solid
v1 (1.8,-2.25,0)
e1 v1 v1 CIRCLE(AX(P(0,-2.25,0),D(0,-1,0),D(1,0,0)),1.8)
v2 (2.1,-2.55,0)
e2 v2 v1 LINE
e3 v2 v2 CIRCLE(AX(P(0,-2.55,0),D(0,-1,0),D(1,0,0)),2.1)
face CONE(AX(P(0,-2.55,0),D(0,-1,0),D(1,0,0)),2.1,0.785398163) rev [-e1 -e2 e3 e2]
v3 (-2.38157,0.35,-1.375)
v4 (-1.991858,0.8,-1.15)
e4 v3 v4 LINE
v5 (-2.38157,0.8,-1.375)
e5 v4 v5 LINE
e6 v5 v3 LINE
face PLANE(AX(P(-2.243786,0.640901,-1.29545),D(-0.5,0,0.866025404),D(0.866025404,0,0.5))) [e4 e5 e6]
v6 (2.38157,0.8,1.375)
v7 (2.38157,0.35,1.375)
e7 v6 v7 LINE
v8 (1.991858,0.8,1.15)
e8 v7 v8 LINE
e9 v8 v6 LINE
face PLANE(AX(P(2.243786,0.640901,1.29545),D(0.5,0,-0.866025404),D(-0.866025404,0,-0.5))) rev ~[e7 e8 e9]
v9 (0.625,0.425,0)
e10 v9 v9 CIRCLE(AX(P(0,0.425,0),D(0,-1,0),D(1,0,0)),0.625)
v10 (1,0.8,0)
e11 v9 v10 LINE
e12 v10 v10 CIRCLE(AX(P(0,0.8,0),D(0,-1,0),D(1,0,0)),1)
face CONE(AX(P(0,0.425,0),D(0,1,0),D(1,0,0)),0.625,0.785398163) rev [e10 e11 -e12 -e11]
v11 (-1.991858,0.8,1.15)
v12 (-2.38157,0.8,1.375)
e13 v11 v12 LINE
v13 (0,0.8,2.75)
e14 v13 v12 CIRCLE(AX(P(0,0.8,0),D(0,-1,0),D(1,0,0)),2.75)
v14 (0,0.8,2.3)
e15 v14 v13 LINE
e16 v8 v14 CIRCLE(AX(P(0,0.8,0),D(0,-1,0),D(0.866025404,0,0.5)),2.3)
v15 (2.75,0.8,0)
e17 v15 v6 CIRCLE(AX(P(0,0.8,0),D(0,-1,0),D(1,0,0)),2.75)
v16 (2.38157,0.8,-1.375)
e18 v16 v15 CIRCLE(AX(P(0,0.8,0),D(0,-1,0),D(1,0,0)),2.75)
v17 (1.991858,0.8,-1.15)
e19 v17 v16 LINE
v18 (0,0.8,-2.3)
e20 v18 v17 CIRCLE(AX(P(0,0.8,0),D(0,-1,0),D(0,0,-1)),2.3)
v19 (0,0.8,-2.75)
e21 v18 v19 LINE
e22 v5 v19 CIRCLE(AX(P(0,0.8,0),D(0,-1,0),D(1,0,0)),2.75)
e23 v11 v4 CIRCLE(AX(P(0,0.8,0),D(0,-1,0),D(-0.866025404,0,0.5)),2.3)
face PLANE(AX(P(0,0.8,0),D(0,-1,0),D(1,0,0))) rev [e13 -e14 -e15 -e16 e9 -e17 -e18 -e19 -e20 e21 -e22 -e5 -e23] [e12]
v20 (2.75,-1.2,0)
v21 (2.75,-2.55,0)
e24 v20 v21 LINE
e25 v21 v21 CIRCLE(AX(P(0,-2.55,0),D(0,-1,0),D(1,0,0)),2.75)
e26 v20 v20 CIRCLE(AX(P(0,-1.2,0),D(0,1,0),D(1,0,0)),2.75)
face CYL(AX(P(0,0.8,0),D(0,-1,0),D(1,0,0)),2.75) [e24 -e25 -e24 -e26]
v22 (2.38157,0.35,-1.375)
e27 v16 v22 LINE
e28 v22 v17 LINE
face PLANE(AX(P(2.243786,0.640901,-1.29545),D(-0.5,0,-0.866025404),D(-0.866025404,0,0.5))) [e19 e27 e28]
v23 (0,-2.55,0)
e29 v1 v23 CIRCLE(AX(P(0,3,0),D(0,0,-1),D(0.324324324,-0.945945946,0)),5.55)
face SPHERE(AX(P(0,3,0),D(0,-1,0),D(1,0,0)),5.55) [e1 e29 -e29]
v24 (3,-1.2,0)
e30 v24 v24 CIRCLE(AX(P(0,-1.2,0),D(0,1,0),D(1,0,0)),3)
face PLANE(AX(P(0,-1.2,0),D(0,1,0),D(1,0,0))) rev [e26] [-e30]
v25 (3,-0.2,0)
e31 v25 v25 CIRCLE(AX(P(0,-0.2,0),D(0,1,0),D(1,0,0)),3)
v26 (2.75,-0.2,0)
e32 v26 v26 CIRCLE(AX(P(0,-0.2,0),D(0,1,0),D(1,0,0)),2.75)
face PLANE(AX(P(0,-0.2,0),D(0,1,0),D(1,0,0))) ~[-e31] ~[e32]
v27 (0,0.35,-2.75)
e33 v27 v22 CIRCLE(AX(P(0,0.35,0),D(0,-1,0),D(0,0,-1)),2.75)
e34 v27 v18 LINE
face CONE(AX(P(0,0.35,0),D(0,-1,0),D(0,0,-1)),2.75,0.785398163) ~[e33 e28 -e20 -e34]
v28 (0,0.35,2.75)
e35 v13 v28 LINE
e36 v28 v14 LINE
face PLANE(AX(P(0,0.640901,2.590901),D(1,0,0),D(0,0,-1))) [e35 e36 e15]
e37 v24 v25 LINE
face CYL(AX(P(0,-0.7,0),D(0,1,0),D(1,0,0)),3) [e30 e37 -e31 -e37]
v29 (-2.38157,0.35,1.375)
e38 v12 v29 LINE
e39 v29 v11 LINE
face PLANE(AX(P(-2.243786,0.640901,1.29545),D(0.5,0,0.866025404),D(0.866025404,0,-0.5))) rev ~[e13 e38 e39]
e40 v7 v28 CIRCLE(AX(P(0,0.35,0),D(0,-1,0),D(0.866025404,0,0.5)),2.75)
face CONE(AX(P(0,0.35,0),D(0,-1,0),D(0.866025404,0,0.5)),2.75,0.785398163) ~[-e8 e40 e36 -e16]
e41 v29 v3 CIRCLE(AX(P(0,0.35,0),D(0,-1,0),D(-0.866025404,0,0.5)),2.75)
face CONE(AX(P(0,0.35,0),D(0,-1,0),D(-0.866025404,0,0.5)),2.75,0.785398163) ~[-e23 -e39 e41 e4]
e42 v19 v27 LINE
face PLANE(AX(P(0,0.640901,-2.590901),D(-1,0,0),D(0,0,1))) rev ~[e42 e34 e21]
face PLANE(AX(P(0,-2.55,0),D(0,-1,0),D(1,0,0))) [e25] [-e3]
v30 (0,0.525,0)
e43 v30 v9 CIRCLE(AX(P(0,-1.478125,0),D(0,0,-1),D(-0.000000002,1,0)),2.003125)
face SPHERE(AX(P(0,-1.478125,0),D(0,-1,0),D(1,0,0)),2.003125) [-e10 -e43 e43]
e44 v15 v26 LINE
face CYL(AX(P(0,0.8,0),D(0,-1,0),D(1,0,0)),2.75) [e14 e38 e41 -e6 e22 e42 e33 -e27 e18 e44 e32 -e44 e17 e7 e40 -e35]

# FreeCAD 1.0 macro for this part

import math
import FreeCAD as App
import Part
import Sketcher

V = App.Vector
Q = App.Units.Quantity

doc = App.newDocument("Part")
body = doc.addObject("PartDesign::Body", "Body")

# Sketch on XY plane
sketch1 = body.newObject("Sketcher::SketchObject", "Sketch")
sketch1.AttachmentSupport = (doc.getObject("XY_Plane"), [""])
sketch1.MapMode = "FlatFace"
sketch1.addGeometry([
    Part.LineSegment(V(2.75, 0.8, 0), V(1, 0.8, 0)),  # 0
    Part.LineSegment(V(1, 0.8, 0), V(0.62, 0.42, 0)),  # 1
    Part.ArcOfCircle(Part.Circle(V(0, -1.48, 0), V(0, 0, 1), 2), math.radians(71.82), math.radians(90)),  # 2
    Part.LineSegment(V(0, 0.53, 0), V(0, -2.55, 0)),  # 3
    Part.ArcOfCircle(Part.Circle(V(0, 3, 0), V(0, 0, 1), 5.55), math.radians(-90), math.radians(-71.08)),  # 4
    Part.LineSegment(V(1.8, -2.25, 0), V(2.1, -2.55, 0)),  # 5
    Part.LineSegment(V(2.1, -2.55, 0), V(2.75, -2.55, 0)),  # 6
    Part.LineSegment(V(2.75, -2.55, 0), V(2.75, 0.8, 0)),  # 7
], False)
sketch1.addConstraint([
    Sketcher.Constraint("Coincident", 0, 2, 1, 1),
    Sketcher.Constraint("Coincident", 1, 2, 2, 1),
    Sketcher.Constraint("Coincident", 2, 2, 3, 1),
    Sketcher.Constraint("Coincident", 3, 2, 4, 1),
    Sketcher.Constraint("Coincident", 4, 2, 5, 1),
    Sketcher.Constraint("Coincident", 5, 2, 6, 1),
    Sketcher.Constraint("Coincident", 6, 2, 7, 1),
    Sketcher.Constraint("Coincident", 7, 2, 0, 1),
    Sketcher.Constraint("Horizontal", 0),
    Sketcher.Constraint("Vertical", 3),
    Sketcher.Constraint("Horizontal", 6),
    Sketcher.Constraint("Vertical", 7),
    Sketcher.Constraint("PointOnObject", 2, 3, -2),
    Sketcher.Constraint("PointOnObject", 4, 3, -2),
    Sketcher.Constraint("PointOnObject", 2, 2, -2),
    Sketcher.Constraint("Perpendicular", 1, 5),
    Sketcher.Constraint("Horizontal", 3, 2, 5, 2),
    Sketcher.Constraint("Angle", 1, Q("-135 deg")),
    Sketcher.Constraint("Radius", 4, Q("5.55 mm")),
    Sketcher.Constraint("DistanceY", -1, 1, 4, 3, Q("3 mm")),
    Sketcher.Constraint("DistanceX", -1, 1, 0, 2, Q("1 mm")),
    Sketcher.Constraint("DistanceX", 0, 2, 0, 1, Q("1.75 mm")),
    Sketcher.Constraint("DistanceX", 6, 1, 6, 2, Q("0.65 mm")),
    Sketcher.Constraint("DistanceY", 7, 1, 7, 2, Q("3.35 mm")),
    Sketcher.Constraint("DistanceY", 1, 2, 2, 2, Q("0.1 mm")),
    Sketcher.Constraint("DistanceY", 3, 2, 3, 1, Q("3.075 mm")),
])
revolution = body.newObject("PartDesign::Revolution", "Revolution")
revolution.Profile = sketch1
revolution.ReferenceAxis = (sketch1, ["V_Axis"])
revolution.Angle = 360

# Sketch on XY plane
sketch2 = body.newObject("Sketcher::SketchObject", "Sketch001")
sketch2.AttachmentSupport = (doc.getObject("XY_Plane"), [""])
sketch2.MapMode = "FlatFace"
sketch2.addGeometry([
    Part.LineSegment(V(2.75, -0.2, 0), V(2.75, -1.2, 0)),
    Part.LineSegment(V(2.75, -1.2, 0), V(3, -1.2, 0)),
    Part.LineSegment(V(3, -1.2, 0), V(3, -0.2, 0)),
    Part.LineSegment(V(3, -0.2, 0), V(2.75, -0.2, 0)),
], False)
sketch2.addConstraint([
    Sketcher.Constraint("Coincident", 0, 2, 1, 1),
    Sketcher.Constraint("Coincident", 1, 2, 2, 1),
    Sketcher.Constraint("Coincident", 2, 2, 3, 1),
    Sketcher.Constraint("Coincident", 3, 2, 0, 1),
    Sketcher.Constraint("Vertical", 0),
    Sketcher.Constraint("Horizontal", 1),
    Sketcher.Constraint("Vertical", 2),
    Sketcher.Constraint("Horizontal", 3),
    Sketcher.Constraint("DistanceY", 0, 2, 0, 1, Q("1 mm")),
    Sketcher.Constraint("DistanceX", -1, 1, 1, 2, Q("3 mm")),
    Sketcher.Constraint("DistanceX", 1, 1, 1, 2, Q("0.25 mm")),
    Sketcher.Constraint("DistanceY", 0, 2, -1, 1, Q("1.2 mm")),
])
revolution2 = body.newObject("PartDesign::Revolution", "Revolution001")
revolution2.Profile = sketch2
revolution2.ReferenceAxis = (sketch2, ["V_Axis"])
revolution2.Angle = 360

# Sketch on YZ plane
sketch3 = body.newObject("Sketcher::SketchObject", "Sketch002")
sketch3.AttachmentSupport = (doc.getObject("YZ_Plane"), [""])
sketch3.MapMode = "FlatFace"
sketch3.addGeometry([
    Part.LineSegment(V(0.35, -2.75, 0), V(0.8, -2.75, 0)),
    Part.LineSegment(V(0.8, -2.75, 0), V(0.8, -2.3, 0)),
    Part.LineSegment(V(0.8, -2.3, 0), V(0.35, -2.75, 0)),
], False)
sketch3.addConstraint([
    Sketcher.Constraint("Coincident", 0, 2, 1, 1),
    Sketcher.Constraint("Coincident", 1, 2, 2, 1),
    Sketcher.Constraint("Coincident", 2, 2, 0, 1),
    Sketcher.Constraint("Horizontal", 0),
    Sketcher.Constraint("Vertical", 1),
    Sketcher.Constraint("Equal", 0, 1),
    Sketcher.Constraint("DistanceX", 0, 1, 0, 2, Q("0.45 mm")),
    Sketcher.Constraint("DistanceX", -1, 1, 0, 2, Q("0.8 mm")),
    Sketcher.Constraint("DistanceY", 1, 2, -1, 1, Q("2.3 mm")),
])
groove = body.newObject("PartDesign::Groove", "Groove")
groove.Profile = sketch3
groove.ReferenceAxis = (sketch3, ["H_Axis"])
groove.Angle = 60
groove.Reversed = True
doc.recompute()

polarpattern = body.newObject("PartDesign::PolarPattern", "PolarPattern")
polarpattern.Originals = [groove]
polarpattern.Axis = (doc.getObject("Y_Axis"), [""])
polarpattern.Angle = 360
polarpattern.Occurrences = 3
body.Tip = polarpattern

doc.recompute()
